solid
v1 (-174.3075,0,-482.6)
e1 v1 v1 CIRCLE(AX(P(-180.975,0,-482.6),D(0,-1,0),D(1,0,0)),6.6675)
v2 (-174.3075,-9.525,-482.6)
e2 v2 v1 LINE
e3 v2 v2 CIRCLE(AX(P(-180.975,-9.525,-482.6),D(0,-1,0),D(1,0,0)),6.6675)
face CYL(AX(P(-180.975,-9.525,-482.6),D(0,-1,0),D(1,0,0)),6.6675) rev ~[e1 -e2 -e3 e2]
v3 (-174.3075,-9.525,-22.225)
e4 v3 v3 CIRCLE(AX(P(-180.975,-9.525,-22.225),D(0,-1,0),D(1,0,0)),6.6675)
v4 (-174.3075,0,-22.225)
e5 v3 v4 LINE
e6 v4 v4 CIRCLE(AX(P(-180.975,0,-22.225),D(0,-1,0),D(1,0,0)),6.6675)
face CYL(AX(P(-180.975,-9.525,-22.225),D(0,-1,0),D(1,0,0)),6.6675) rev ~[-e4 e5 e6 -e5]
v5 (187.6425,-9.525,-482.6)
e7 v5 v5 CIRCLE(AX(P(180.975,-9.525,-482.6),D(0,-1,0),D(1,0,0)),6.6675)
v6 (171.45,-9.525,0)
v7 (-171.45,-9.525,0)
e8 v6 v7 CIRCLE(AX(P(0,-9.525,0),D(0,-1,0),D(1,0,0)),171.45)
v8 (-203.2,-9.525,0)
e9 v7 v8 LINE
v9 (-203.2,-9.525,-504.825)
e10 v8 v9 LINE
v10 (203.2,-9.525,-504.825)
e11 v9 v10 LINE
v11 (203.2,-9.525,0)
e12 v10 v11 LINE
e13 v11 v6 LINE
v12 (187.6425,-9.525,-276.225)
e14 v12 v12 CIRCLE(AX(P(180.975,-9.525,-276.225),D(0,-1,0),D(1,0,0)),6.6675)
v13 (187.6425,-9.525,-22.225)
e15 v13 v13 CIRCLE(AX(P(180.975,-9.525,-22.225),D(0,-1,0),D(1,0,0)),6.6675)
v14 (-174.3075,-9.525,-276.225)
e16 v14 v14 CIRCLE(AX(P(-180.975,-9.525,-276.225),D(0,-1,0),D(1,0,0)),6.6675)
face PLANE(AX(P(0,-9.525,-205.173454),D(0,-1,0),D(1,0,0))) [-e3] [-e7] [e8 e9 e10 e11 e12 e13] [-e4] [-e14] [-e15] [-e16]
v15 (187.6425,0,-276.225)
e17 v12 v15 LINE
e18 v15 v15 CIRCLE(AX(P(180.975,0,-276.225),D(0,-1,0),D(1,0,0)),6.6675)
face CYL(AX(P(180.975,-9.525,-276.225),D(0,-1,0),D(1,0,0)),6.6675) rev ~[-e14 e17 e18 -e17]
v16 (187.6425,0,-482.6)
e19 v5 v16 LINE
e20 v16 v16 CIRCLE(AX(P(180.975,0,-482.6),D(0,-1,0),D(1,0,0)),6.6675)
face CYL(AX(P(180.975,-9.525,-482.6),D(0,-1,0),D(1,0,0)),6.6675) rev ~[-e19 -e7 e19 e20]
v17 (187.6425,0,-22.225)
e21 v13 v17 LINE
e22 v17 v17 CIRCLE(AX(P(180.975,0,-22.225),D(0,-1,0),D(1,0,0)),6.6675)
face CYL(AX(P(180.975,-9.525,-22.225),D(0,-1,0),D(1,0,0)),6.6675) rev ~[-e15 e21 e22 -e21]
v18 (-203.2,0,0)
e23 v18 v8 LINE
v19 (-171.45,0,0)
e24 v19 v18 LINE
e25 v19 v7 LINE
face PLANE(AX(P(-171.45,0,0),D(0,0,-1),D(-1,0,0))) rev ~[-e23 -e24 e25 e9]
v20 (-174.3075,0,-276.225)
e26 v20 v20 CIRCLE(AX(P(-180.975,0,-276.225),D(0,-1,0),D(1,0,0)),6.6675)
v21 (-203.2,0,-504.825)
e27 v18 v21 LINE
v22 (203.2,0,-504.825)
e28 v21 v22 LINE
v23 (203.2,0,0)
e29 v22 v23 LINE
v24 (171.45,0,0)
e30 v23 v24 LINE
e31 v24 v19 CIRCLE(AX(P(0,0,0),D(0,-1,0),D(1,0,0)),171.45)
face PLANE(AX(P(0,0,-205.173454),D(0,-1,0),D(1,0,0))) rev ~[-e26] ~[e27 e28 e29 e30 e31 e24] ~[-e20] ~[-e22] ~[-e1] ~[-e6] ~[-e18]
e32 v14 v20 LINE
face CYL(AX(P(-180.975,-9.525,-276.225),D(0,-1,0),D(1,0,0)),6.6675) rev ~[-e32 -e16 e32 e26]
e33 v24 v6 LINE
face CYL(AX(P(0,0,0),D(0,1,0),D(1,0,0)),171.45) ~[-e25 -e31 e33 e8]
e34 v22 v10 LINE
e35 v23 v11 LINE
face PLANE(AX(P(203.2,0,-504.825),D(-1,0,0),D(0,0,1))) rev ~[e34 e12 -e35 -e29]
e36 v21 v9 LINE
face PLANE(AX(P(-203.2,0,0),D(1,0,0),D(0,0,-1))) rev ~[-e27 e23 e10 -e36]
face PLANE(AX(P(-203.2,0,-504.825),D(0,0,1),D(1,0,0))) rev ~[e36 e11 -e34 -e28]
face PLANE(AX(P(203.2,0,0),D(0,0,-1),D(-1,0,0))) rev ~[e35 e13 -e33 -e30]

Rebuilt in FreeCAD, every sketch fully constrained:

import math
import FreeCAD as App
import Part
import Sketcher

V = App.Vector
Q = App.Units.Quantity

doc = App.newDocument("Part")
params = doc.addObject("Spreadsheet::Sheet", "Params")
for row, (alias, value) in enumerate([
    ("sketch1_width", "16 in"),
    ("sketch1_radius", "6.75 in"),
    ("sketch1_height", "19.875 in"),
    ("pad1_length", "0.375 in"),
    ("sketch2_diameter", "0.525 in"),
], start=1):
    params.set(f"A{row}", alias)
    params.set(f"B{row}", "=" + value)
    params.setAlias(f"B{row}", alias)

body = doc.addObject("PartDesign::Body", "Body")

sketch1 = body.newObject("Sketcher::SketchObject", "Sketch")
sketch1.AttachmentSupport = (doc.getObject("XZ_Plane"), [""])
sketch1.MapMode = "FlatFace"
sketch1.addGeometry(Part.LineSegment(V(203, 0, 0), V(171, 0, 0)), False)
sketch1.addGeometry(Part.ArcOfCircle(Part.Circle(V(0, 0, 0), V(0, 0, 1), 171), math.radians(0), math.radians(180)), False)
sketch1.addGeometry(Part.LineSegment(V(-171, 0, 0), V(-203, 0, 0)), False)
sketch1.addGeometry(Part.LineSegment(V(-203, 0, 0), V(-203, -505, 0)), False)
sketch1.addGeometry(Part.LineSegment(V(-203, -505, 0), V(203, -505, 0)), False)
sketch1.addGeometry(Part.LineSegment(V(203, -505, 0), V(203, 0, 0)), False)
sketch1.addConstraint(Sketcher.Constraint("Coincident", 0, 2, 1, 1))
sketch1.addConstraint(Sketcher.Constraint("Coincident", 1, 2, 2, 1))
sketch1.addConstraint(Sketcher.Constraint("Coincident", 2, 2, 3, 1))
sketch1.addConstraint(Sketcher.Constraint("Coincident", 3, 2, 4, 1))
sketch1.addConstraint(Sketcher.Constraint("Coincident", 4, 2, 5, 1))
sketch1.addConstraint(Sketcher.Constraint("Coincident", 5, 2, 0, 1))
sketch1.addConstraint(Sketcher.Constraint("Horizontal", 0))
sketch1.addConstraint(Sketcher.Constraint("Horizontal", 2))
sketch1.addConstraint(Sketcher.Constraint("Vertical", 3))
sketch1.addConstraint(Sketcher.Constraint("Horizontal", 4))
sketch1.addConstraint(Sketcher.Constraint("Vertical", 5))
sketch1.addConstraint(Sketcher.Constraint("Coincident", 1, 3, -1, 1))
sketch1.addConstraint(Sketcher.Constraint("Symmetric", 2, 2, 5, 2, -1, 1))
sketch1.addConstraint(Sketcher.Constraint("PointOnObject", 0, 2, -1))
sketch1.addConstraint(Sketcher.Constraint("DistanceX", 4, 1, 4, 2, Q("16 in")))
sketch1.addConstraint(Sketcher.Constraint("Radius", 1, Q("6.75 in")))
sketch1.addConstraint(Sketcher.Constraint("DistanceY", 3, 2, 3, 1, Q("19.875 in")))
sketch1.setExpression("Constraints[14]", "Params.sketch1_width")
sketch1.setExpression("Constraints[15]", "Params.sketch1_radius")
sketch1.setExpression("Constraints[16]", "Params.sketch1_height")
pad1 = body.newObject("PartDesign::Pad", "Pad")
pad1.Profile = sketch1
pad1.setExpression("Length", "Params.pad1_length")

sketch2 = body.newObject("Sketcher::SketchObject", "Sketch001")
sketch2.AttachmentSupport = (doc.getObject("XZ_Plane"), [""])
sketch2.MapMode = "FlatFace"
sketch2.AttachmentOffset = App.Placement(V(0, 0, 0.375 * 25.4), App.Rotation())
sketch2.addGeometry(Part.Circle(V(-181, -22, 0), V(0, 0, 1), 7), False)
sketch2.addGeometry(Part.Circle(V(181, -22, 0), V(0, 0, 1), 7), False)
sketch2.addGeometry(Part.Circle(V(181, -276, 0), V(0, 0, 1), 7), False)
sketch2.addGeometry(Part.Circle(V(-181, -276, 0), V(0, 0, 1), 7), False)
sketch2.addGeometry(Part.Circle(V(181, -483, 0), V(0, 0, 1), 7), False)
sketch2.addGeometry(Part.Circle(V(-181, -483, 0), V(0, 0, 1), 7), False)
sketch2.addConstraint(Sketcher.Constraint("Equal", 0, 1))
sketch2.addConstraint(Sketcher.Constraint("Equal", 1, 2))
sketch2.addConstraint(Sketcher.Constraint("Equal", 2, 3))
sketch2.addConstraint(Sketcher.Constraint("Equal", 3, 4))
sketch2.addConstraint(Sketcher.Constraint("Equal", 4, 5))
sketch2.addConstraint(Sketcher.Constraint("Symmetric", 0, 3, 1, 3, -2))
sketch2.addConstraint(Sketcher.Constraint("Symmetric", 2, 3, 3, 3, -2))
sketch2.addConstraint(Sketcher.Constraint("Symmetric", 4, 3, 5, 3, -2))
sketch2.addConstraint(Sketcher.Constraint("Vertical", 1, 3, 2, 3))
sketch2.addConstraint(Sketcher.Constraint("Vertical", 2, 3, 4, 3))
sketch2.addConstraint(Sketcher.Constraint("Diameter", 0, Q("0.525 in")))
sketch2.addConstraint(Sketcher.Constraint("DistanceY", 4, 3, -1, 1, Q("19 in")))
sketch2.addConstraint(Sketcher.Constraint("DistanceY", 2, 3, 1, 3, Q("10 in")))
sketch2.addConstraint(Sketcher.Constraint("DistanceX", 0, 3, 1, 3, Q("14.25 in")))
sketch2.addConstraint(Sketcher.Constraint("DistanceY", 0, 3, -1, 1, Q("0.875 in")))
sketch2.setExpression("Constraints[10]", "Params.sketch2_diameter")
pocket1 = body.newObject("PartDesign::Pocket", "Pocket")
pocket1.Profile = sketch2
pocket1.Type = "ThroughAll"

doc.recompute()
